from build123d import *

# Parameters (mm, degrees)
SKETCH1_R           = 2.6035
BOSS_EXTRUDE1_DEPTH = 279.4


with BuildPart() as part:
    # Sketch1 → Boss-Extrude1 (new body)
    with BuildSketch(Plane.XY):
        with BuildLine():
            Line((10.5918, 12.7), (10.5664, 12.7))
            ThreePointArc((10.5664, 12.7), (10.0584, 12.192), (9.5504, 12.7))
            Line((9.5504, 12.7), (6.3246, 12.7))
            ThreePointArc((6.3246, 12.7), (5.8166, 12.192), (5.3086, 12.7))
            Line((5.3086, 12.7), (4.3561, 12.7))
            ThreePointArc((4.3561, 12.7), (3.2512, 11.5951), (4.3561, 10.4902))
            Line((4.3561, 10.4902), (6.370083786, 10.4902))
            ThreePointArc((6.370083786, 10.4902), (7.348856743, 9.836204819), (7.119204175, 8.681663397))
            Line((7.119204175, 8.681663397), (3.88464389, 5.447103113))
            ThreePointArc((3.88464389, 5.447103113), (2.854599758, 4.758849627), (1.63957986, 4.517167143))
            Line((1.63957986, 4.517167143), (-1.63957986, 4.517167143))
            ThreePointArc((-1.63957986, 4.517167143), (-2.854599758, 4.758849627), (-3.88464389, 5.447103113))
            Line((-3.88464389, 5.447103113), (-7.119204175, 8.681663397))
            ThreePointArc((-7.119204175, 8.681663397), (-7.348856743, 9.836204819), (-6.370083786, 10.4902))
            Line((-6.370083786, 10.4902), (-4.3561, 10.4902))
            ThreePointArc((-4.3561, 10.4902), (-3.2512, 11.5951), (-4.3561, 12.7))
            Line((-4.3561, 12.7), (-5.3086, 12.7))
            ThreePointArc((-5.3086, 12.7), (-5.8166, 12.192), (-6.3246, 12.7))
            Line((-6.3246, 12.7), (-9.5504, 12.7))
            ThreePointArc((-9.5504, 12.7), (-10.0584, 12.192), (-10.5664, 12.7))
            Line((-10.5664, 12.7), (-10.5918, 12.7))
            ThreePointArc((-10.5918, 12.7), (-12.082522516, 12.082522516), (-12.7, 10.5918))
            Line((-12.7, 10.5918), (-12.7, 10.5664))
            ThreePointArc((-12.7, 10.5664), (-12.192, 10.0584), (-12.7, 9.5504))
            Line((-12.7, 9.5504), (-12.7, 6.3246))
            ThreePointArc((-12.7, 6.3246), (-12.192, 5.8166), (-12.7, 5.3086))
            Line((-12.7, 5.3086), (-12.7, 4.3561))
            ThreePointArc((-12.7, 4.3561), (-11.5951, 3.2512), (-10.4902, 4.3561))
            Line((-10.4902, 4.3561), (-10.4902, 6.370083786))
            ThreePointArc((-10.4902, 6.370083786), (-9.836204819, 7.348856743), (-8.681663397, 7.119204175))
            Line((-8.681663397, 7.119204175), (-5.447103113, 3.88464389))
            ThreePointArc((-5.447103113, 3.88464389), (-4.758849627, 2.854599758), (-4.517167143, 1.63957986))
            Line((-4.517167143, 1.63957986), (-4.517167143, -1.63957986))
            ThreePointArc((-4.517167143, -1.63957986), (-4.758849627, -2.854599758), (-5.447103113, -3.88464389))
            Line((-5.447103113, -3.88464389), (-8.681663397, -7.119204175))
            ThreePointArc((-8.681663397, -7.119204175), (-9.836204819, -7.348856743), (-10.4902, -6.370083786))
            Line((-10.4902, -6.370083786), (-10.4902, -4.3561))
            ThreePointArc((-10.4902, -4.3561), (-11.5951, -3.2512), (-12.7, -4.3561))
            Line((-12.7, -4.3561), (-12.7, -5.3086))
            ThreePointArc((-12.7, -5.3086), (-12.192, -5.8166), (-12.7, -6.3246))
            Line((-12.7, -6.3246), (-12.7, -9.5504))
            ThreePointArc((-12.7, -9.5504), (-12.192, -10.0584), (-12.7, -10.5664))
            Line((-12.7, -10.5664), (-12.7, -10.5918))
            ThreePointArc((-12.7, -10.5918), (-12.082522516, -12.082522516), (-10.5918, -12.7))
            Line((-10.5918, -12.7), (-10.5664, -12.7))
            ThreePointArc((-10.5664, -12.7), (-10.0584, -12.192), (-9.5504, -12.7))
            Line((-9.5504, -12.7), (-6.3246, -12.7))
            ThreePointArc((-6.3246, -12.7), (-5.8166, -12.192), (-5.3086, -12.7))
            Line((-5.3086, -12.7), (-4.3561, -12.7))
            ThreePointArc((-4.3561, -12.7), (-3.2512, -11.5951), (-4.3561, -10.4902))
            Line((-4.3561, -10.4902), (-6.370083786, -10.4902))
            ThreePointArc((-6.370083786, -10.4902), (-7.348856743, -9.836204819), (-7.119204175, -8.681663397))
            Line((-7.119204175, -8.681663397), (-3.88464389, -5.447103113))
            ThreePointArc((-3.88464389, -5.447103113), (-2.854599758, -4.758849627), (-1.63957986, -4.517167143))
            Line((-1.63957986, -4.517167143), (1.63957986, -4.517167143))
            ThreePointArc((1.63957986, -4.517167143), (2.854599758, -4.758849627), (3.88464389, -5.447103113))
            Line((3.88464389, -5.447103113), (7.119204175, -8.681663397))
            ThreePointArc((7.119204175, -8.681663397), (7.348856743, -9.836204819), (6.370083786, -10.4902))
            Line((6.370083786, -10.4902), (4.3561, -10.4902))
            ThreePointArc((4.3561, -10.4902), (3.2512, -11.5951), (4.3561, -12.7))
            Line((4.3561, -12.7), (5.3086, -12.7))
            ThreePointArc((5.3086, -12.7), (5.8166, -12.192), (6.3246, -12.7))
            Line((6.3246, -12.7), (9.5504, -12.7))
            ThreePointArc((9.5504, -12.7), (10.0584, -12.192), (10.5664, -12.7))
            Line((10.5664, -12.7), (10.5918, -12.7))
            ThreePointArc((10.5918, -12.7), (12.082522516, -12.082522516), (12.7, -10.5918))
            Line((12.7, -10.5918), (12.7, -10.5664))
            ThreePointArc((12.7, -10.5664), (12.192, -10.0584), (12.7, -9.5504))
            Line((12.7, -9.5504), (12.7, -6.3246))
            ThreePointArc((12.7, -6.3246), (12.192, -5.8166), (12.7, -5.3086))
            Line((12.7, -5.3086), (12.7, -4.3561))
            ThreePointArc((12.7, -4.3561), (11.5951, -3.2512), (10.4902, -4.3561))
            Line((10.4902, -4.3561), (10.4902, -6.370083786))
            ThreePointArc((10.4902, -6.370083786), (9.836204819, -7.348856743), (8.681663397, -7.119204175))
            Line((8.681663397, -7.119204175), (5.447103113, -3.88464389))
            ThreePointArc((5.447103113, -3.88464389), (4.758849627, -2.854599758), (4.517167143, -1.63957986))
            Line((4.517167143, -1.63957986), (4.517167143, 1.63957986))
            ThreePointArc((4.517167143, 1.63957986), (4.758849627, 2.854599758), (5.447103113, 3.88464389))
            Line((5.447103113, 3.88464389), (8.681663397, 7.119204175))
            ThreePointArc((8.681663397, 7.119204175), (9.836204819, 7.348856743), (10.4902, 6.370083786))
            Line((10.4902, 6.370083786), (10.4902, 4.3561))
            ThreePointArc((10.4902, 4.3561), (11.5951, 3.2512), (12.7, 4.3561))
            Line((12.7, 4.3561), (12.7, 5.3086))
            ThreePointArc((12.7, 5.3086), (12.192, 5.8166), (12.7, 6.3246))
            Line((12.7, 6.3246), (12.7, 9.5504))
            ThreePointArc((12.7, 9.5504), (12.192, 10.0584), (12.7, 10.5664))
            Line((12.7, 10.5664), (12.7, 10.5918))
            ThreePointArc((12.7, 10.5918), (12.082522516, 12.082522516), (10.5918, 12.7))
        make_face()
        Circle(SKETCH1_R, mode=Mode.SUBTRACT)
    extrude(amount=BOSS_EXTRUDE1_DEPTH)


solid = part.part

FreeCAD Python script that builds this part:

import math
import FreeCAD as App
import Part
import Sketcher
from FreeCAD import Vector
Q = App.Units.Quantity

doc = App.newDocument("Part")
body = doc.addObject("PartDesign::Body", "Body")

# Sketch on XY plane
sketch1 = body.newObject("Sketcher::SketchObject", "Sketch")
sketch1.AttachmentSupport = (doc.getObject("XY_Plane"), [""])
sketch1.MapMode = "FlatFace"
sketch1.addGeometry(Part.LineSegment(Vector(10.592, 12.7, 0), Vector(10.566, 12.7, 0)), False)
sketch1.addGeometry(Part.ArcOfCircle(Part.Circle(Vector(10.058, 12.7, 0), Vector(0, 0, 1), 0.508), math.radians(180), math.radians(360)), False)
sketch1.addGeometry(Part.LineSegment(Vector(9.55, 12.7, 0), Vector(6.325, 12.7, 0)), False)
sketch1.addGeometry(Part.ArcOfCircle(Part.Circle(Vector(5.817, 12.7, 0), Vector(0, 0, 1), 0.508), math.radians(180), math.radians(360)), False)
sketch1.addGeometry(Part.LineSegment(Vector(5.309, 12.7, 0), Vector(4.356, 12.7, 0)), False)
sketch1.addGeometry(Part.ArcOfCircle(Part.Circle(Vector(4.356, 11.595, 0), Vector(0, 0, 1), 1.105), math.radians(90), math.radians(270)), False)
sketch1.addGeometry(Part.LineSegment(Vector(4.356, 10.49, 0), Vector(6.37, 10.49, 0)), False)
sketch1.addGeometry(Part.ArcOfCircle(Part.Circle(Vector(6.37, 9.431, 0), Vector(0, 0, 1), 1.059), math.radians(-45), math.radians(90)), False)
sketch1.addGeometry(Part.LineSegment(Vector(7.119, 8.682, 0), Vector(3.885, 5.447, 0)), False)
sketch1.addGeometry(Part.ArcOfCircle(Part.Circle(Vector(1.64, 7.692, 0), Vector(0, 0, 1), 3.175), math.radians(-90), math.radians(-45)), False)
sketch1.addGeometry(Part.LineSegment(Vector(1.64, 4.517, 0), Vector(-1.64, 4.517, 0)), False)
sketch1.addGeometry(Part.ArcOfCircle(Part.Circle(Vector(-1.64, 7.692, 0), Vector(0, 0, 1), 3.175), math.radians(-135), math.radians(-90)), False)
sketch1.addGeometry(Part.LineSegment(Vector(-3.885, 5.447, 0), Vector(-7.119, 8.682, 0)), False)
sketch1.addGeometry(Part.ArcOfCircle(Part.Circle(Vector(-6.37, 9.431, 0), Vector(0, 0, 1), 1.059), math.radians(90), math.radians(225)), False)
sketch1.addGeometry(Part.LineSegment(Vector(-6.37, 10.49, 0), Vector(-4.356, 10.49, 0)), False)
sketch1.addGeometry(Part.ArcOfCircle(Part.Circle(Vector(-4.356, 11.595, 0), Vector(0, 0, 1), 1.105), math.radians(-90), math.radians(90)), False)
sketch1.addGeometry(Part.LineSegment(Vector(-4.356, 12.7, 0), Vector(-5.309, 12.7, 0)), False)
sketch1.addGeometry(Part.ArcOfCircle(Part.Circle(Vector(-5.817, 12.7, 0), Vector(0, 0, 1), 0.508), math.radians(180), math.radians(360)), False)
sketch1.addGeometry(Part.LineSegment(Vector(-6.325, 12.7, 0), Vector(-9.55, 12.7, 0)), False)
sketch1.addGeometry(Part.ArcOfCircle(Part.Circle(Vector(-10.058, 12.7, 0), Vector(0, 0, 1), 0.508), math.radians(180), math.radians(360)), False)
sketch1.addGeometry(Part.LineSegment(Vector(-10.566, 12.7, 0), Vector(-10.592, 12.7, 0)), False)
sketch1.addGeometry(Part.ArcOfCircle(Part.Circle(Vector(-10.592, 10.592, 0), Vector(0, 0, 1), 2.108), math.radians(90), math.radians(180)), False)
sketch1.addGeometry(Part.LineSegment(Vector(-12.7, 10.592, 0), Vector(-12.7, 10.566, 0)), False)
sketch1.addGeometry(Part.ArcOfCircle(Part.Circle(Vector(-12.7, 10.058, 0), Vector(0, 0, 1), 0.508), math.radians(-90), math.radians(90)), False)
sketch1.addGeometry(Part.LineSegment(Vector(-12.7, 9.55, 0), Vector(-12.7, 6.325, 0)), False)
sketch1.addGeometry(Part.ArcOfCircle(Part.Circle(Vector(-12.7, 5.817, 0), Vector(0, 0, 1), 0.508), math.radians(-90), math.radians(90)), False)
sketch1.addGeometry(Part.LineSegment(Vector(-12.7, 5.309, 0), Vector(-12.7, 4.356, 0)), False)
sketch1.addGeometry(Part.ArcOfCircle(Part.Circle(Vector(-11.595, 4.356, 0), Vector(0, 0, 1), 1.105), math.radians(180), math.radians(360)), False)
sketch1.addGeometry(Part.LineSegment(Vector(-10.49, 4.356, 0), Vector(-10.49, 6.37, 0)), False)
sketch1.addGeometry(Part.ArcOfCircle(Part.Circle(Vector(-9.431, 6.37, 0), Vector(0, 0, 1), 1.059), math.radians(45), math.radians(180)), False)
sketch1.addGeometry(Part.LineSegment(Vector(-8.682, 7.119, 0), Vector(-5.447, 3.885, 0)), False)
sketch1.addGeometry(Part.ArcOfCircle(Part.Circle(Vector(-7.692, 1.64, 0), Vector(0, 0, 1), 3.175), math.radians(0), math.radians(45)), False)
sketch1.addGeometry(Part.LineSegment(Vector(-4.517, 1.64, 0), Vector(-4.517, -1.64, 0)), False)
sketch1.addGeometry(Part.ArcOfCircle(Part.Circle(Vector(-7.692, -1.64, 0), Vector(0, 0, 1), 3.175), math.radians(-45), math.radians(0)), False)
sketch1.addGeometry(Part.LineSegment(Vector(-5.447, -3.885, 0), Vector(-8.682, -7.119, 0)), False)
sketch1.addGeometry(Part.ArcOfCircle(Part.Circle(Vector(-9.431, -6.37, 0), Vector(0, 0, 1), 1.059), math.radians(180), math.radians(315)), False)
sketch1.addGeometry(Part.LineSegment(Vector(-10.49, -6.37, 0), Vector(-10.49, -4.356, 0)), False)
sketch1.addGeometry(Part.ArcOfCircle(Part.Circle(Vector(-11.595, -4.356, 0), Vector(0, 0, 1), 1.105), math.radians(0), math.radians(180)), False)
sketch1.addGeometry(Part.LineSegment(Vector(-12.7, -4.356, 0), Vector(-12.7, -5.309, 0)), False)
sketch1.addGeometry(Part.ArcOfCircle(Part.Circle(Vector(-12.7, -5.817, 0), Vector(0, 0, 1), 0.508), math.radians(-90), math.radians(90)), False)
sketch1.addGeometry(Part.LineSegment(Vector(-12.7, -6.325, 0), Vector(-12.7, -9.55, 0)), False)
sketch1.addGeometry(Part.ArcOfCircle(Part.Circle(Vector(-12.7, -10.058, 0), Vector(0, 0, 1), 0.508), math.radians(-90), math.radians(90)), False)
sketch1.addGeometry(Part.LineSegment(Vector(-12.7, -10.566, 0), Vector(-12.7, -10.592, 0)), False)
sketch1.addGeometry(Part.ArcOfCircle(Part.Circle(Vector(-10.592, -10.592, 0), Vector(0, 0, 1), 2.108), math.radians(180), math.radians(270)), False)
sketch1.addGeometry(Part.LineSegment(Vector(-10.592, -12.7, 0), Vector(-10.566, -12.7, 0)), False)
sketch1.addGeometry(Part.ArcOfCircle(Part.Circle(Vector(-10.058, -12.7, 0), Vector(0, 0, 1), 0.508), math.radians(0), math.radians(180)), False)
sketch1.addGeometry(Part.LineSegment(Vector(-9.55, -12.7, 0), Vector(-6.325, -12.7, 0)), False)
sketch1.addGeometry(Part.ArcOfCircle(Part.Circle(Vector(-5.817, -12.7, 0), Vector(0, 0, 1), 0.508), math.radians(0), math.radians(180)), False)
sketch1.addGeometry(Part.LineSegment(Vector(-5.309, -12.7, 0), Vector(-4.356, -12.7, 0)), False)
sketch1.addGeometry(Part.ArcOfCircle(Part.Circle(Vector(-4.356, -11.595, 0), Vector(0, 0, 1), 1.105), math.radians(-90), math.radians(90)), False)
sketch1.addGeometry(Part.LineSegment(Vector(-4.356, -10.49, 0), Vector(-6.37, -10.49, 0)), False)
sketch1.addGeometry(Part.ArcOfCircle(Part.Circle(Vector(-6.37, -9.431, 0), Vector(0, 0, 1), 1.059), math.radians(135), math.radians(270)), False)
sketch1.addGeometry(Part.LineSegment(Vector(-7.119, -8.682, 0), Vector(-3.885, -5.447, 0)), False)
sketch1.addGeometry(Part.ArcOfCircle(Part.Circle(Vector(-1.64, -7.692, 0), Vector(0, 0, 1), 3.175), math.radians(90), math.radians(135)), False)
sketch1.addGeometry(Part.LineSegment(Vector(-1.64, -4.517, 0), Vector(1.64, -4.517, 0)), False)
sketch1.addGeometry(Part.ArcOfCircle(Part.Circle(Vector(1.64, -7.692, 0), Vector(0, 0, 1), 3.175), math.radians(45), math.radians(90)), False)
sketch1.addGeometry(Part.LineSegment(Vector(3.885, -5.447, 0), Vector(7.119, -8.682, 0)), False)
sketch1.addGeometry(Part.ArcOfCircle(Part.Circle(Vector(6.37, -9.431, 0), Vector(0, 0, 1), 1.059), math.radians(-90), math.radians(45)), False)
sketch1.addGeometry(Part.LineSegment(Vector(6.37, -10.49, 0), Vector(4.356, -10.49, 0)), False)
sketch1.addGeometry(Part.ArcOfCircle(Part.Circle(Vector(4.356, -11.595, 0), Vector(0, 0, 1), 1.105), math.radians(90), math.radians(270)), False)
sketch1.addGeometry(Part.LineSegment(Vector(4.356, -12.7, 0), Vector(5.309, -12.7, 0)), False)
sketch1.addGeometry(Part.ArcOfCircle(Part.Circle(Vector(5.817, -12.7, 0), Vector(0, 0, 1), 0.508), math.radians(0), math.radians(180)), False)
sketch1.addGeometry(Part.LineSegment(Vector(6.325, -12.7, 0), Vector(9.55, -12.7, 0)), False)
sketch1.addGeometry(Part.ArcOfCircle(Part.Circle(Vector(10.058, -12.7, 0), Vector(0, 0, 1), 0.508), math.radians(0), math.radians(180)), False)
sketch1.addGeometry(Part.LineSegment(Vector(10.566, -12.7, 0), Vector(10.592, -12.7, 0)), False)
sketch1.addGeometry(Part.ArcOfCircle(Part.Circle(Vector(10.592, -10.592, 0), Vector(0, 0, 1), 2.108), math.radians(-90), math.radians(0)), False)
sketch1.addGeometry(Part.LineSegment(Vector(12.7, -10.592, 0), Vector(12.7, -10.566, 0)), False)
sketch1.addGeometry(Part.ArcOfCircle(Part.Circle(Vector(12.7, -10.058, 0), Vector(0, 0, 1), 0.508), math.radians(90), math.radians(270)), False)
sketch1.addGeometry(Part.LineSegment(Vector(12.7, -9.55, 0), Vector(12.7, -6.325, 0)), False)
sketch1.addGeometry(Part.ArcOfCircle(Part.Circle(Vector(12.7, -5.817, 0), Vector(0, 0, 1), 0.508), math.radians(90), math.radians(270)), False)
sketch1.addGeometry(Part.LineSegment(Vector(12.7, -5.309, 0), Vector(12.7, -4.356, 0)), False)
sketch1.addGeometry(Part.ArcOfCircle(Part.Circle(Vector(11.595, -4.356, 0), Vector(0, 0, 1), 1.105), math.radians(0), math.radians(180)), False)
sketch1.addGeometry(Part.LineSegment(Vector(10.49, -4.356, 0), Vector(10.49, -6.37, 0)), False)
sketch1.addGeometry(Part.ArcOfCircle(Part.Circle(Vector(9.431, -6.37, 0), Vector(0, 0, 1), 1.059), math.radians(-135), math.radians(0)), False)
sketch1.addGeometry(Part.LineSegment(Vector(8.682, -7.119, 0), Vector(5.447, -3.885, 0)), False)
sketch1.addGeometry(Part.ArcOfCircle(Part.Circle(Vector(7.692, -1.64, 0), Vector(0, 0, 1), 3.175), math.radians(180), math.radians(225)), False)
sketch1.addGeometry(Part.LineSegment(Vector(4.517, -1.64, 0), Vector(4.517, 1.64, 0)), False)
sketch1.addGeometry(Part.ArcOfCircle(Part.Circle(Vector(7.692, 1.64, 0), Vector(0, 0, 1), 3.175), math.radians(135), math.radians(180)), False)
sketch1.addGeometry(Part.LineSegment(Vector(5.447, 3.885, 0), Vector(8.682, 7.119, 0)), False)
sketch1.addGeometry(Part.ArcOfCircle(Part.Circle(Vector(9.431, 6.37, 0), Vector(0, 0, 1), 1.059), math.radians(0), math.radians(135)), False)
sketch1.addGeometry(Part.LineSegment(Vector(10.49, 6.37, 0), Vector(10.49, 4.356, 0)), False)
sketch1.addGeometry(Part.ArcOfCircle(Part.Circle(Vector(11.595, 4.356, 0), Vector(0, 0, 1), 1.105), math.radians(180), math.radians(360)), False)
sketch1.addGeometry(Part.LineSegment(Vector(12.7, 4.356, 0), Vector(12.7, 5.309, 0)), False)
sketch1.addGeometry(Part.ArcOfCircle(Part.Circle(Vector(12.7, 5.817, 0), Vector(0, 0, 1), 0.508), math.radians(90), math.radians(270)), False)
sketch1.addGeometry(Part.LineSegment(Vector(12.7, 6.325, 0), Vector(12.7, 9.55, 0)), False)
sketch1.addGeometry(Part.ArcOfCircle(Part.Circle(Vector(12.7, 10.058, 0), Vector(0, 0, 1), 0.508), math.radians(90), math.radians(270)), False)
sketch1.addGeometry(Part.LineSegment(Vector(12.7, 10.566, 0), Vector(12.7, 10.592, 0)), False)
sketch1.addGeometry(Part.ArcOfCircle(Part.Circle(Vector(10.592, 10.592, 0), Vector(0, 0, 1), 2.108), math.radians(0), math.radians(90)), False)
sketch1.addGeometry(Part.Circle(Vector(0, 0, 0), Vector(0, 0, 1), 2.603), False)
sketch1.addConstraint(Sketcher.Constraint("Coincident", 0, 2, 1, 2))
sketch1.addConstraint(Sketcher.Constraint("Coincident", 1, 1, 2, 1))
sketch1.addConstraint(Sketcher.Constraint("Coincident", 2, 2, 3, 2))
sketch1.addConstraint(Sketcher.Constraint("Coincident", 3, 1, 4, 1))
sketch1.addConstraint(Sketcher.Constraint("Tangent", 4, 2, 5, 1))
sketch1.addConstraint(Sketcher.Constraint("Tangent", 5, 2, 6, 1))
sketch1.addConstraint(Sketcher.Constraint("Tangent", 6, 2, 7, 2))
sketch1.addConstraint(Sketcher.Constraint("Tangent", 7, 1, 8, 1))
sketch1.addConstraint(Sketcher.Constraint("Tangent", 8, 2, 9, 2))
sketch1.addConstraint(Sketcher.Constraint("Tangent", 9, 1, 10, 1))
sketch1.addConstraint(Sketcher.Constraint("Tangent", 10, 2, 11, 2))
sketch1.addConstraint(Sketcher.Constraint("Tangent", 11, 1, 12, 1))
sketch1.addConstraint(Sketcher.Constraint("Tangent", 12, 2, 13, 2))
sketch1.addConstraint(Sketcher.Constraint("Tangent", 13, 1, 14, 1))
sketch1.addConstraint(Sketcher.Constraint("Tangent", 14, 2, 15, 1))
sketch1.addConstraint(Sketcher.Constraint("Tangent", 15, 2, 16, 1))
sketch1.addConstraint(Sketcher.Constraint("Coincident", 16, 2, 17, 2))
sketch1.addConstraint(Sketcher.Constraint("Coincident", 17, 1, 18, 1))
sketch1.addConstraint(Sketcher.Constraint("Coincident", 18, 2, 19, 2))
sketch1.addConstraint(Sketcher.Constraint("Coincident", 19, 1, 20, 1))
sketch1.addConstraint(Sketcher.Constraint("Tangent", 20, 2, 21, 1))
sketch1.addConstraint(Sketcher.Constraint("Tangent", 21, 2, 22, 1))
sketch1.addConstraint(Sketcher.Constraint("Coincident", 22, 2, 23, 2))
sketch1.addConstraint(Sketcher.Constraint("Coincident", 23, 1, 24, 1))
sketch1.addConstraint(Sketcher.Constraint("Coincident", 24, 2, 25, 2))
sketch1.addConstraint(Sketcher.Constraint("Coincident", 25, 1, 26, 1))
sketch1.addConstraint(Sketcher.Constraint("Tangent", 26, 2, 27, 1))
sketch1.addConstraint(Sketcher.Constraint("Tangent", 27, 2, 28, 1))
sketch1.addConstraint(Sketcher.Constraint("Tangent", 28, 2, 29, 2))
sketch1.addConstraint(Sketcher.Constraint("Tangent", 29, 1, 30, 1))
sketch1.addConstraint(Sketcher.Constraint("Tangent", 30, 2, 31, 2))
sketch1.addConstraint(Sketcher.Constraint("Tangent", 31, 1, 32, 1))
sketch1.addConstraint(Sketcher.Constraint("Tangent", 32, 2, 33, 2))
sketch1.addConstraint(Sketcher.Constraint("Tangent", 33, 1, 34, 1))
sketch1.addConstraint(Sketcher.Constraint("Tangent", 34, 2, 35, 2))
sketch1.addConstraint(Sketcher.Constraint("Tangent", 35, 1, 36, 1))
sketch1.addConstraint(Sketcher.Constraint("Tangent", 36, 2, 37, 1))
sketch1.addConstraint(Sketcher.Constraint("Tangent", 37, 2, 38, 1))
sketch1.addConstraint(Sketcher.Constraint("Coincident", 38, 2, 39, 2))
sketch1.addConstraint(Sketcher.Constraint("Coincident", 39, 1, 40, 1))
sketch1.addConstraint(Sketcher.Constraint("Coincident", 40, 2, 41, 2))
sketch1.addConstraint(Sketcher.Constraint("Coincident", 41, 1, 42, 1))
sketch1.addConstraint(Sketcher.Constraint("Tangent", 42, 2, 43, 1))
sketch1.addConstraint(Sketcher.Constraint("Tangent", 43, 2, 44, 1))
sketch1.addConstraint(Sketcher.Constraint("Coincident", 44, 2, 45, 2))
sketch1.addConstraint(Sketcher.Constraint("Coincident", 45, 1, 46, 1))
sketch1.addConstraint(Sketcher.Constraint("Coincident", 46, 2, 47, 2))
sketch1.addConstraint(Sketcher.Constraint("Coincident", 47, 1, 48, 1))
sketch1.addConstraint(Sketcher.Constraint("Tangent", 48, 2, 49, 1))
sketch1.addConstraint(Sketcher.Constraint("Tangent", 49, 2, 50, 1))
sketch1.addConstraint(Sketcher.Constraint("Tangent", 50, 2, 51, 2))
sketch1.addConstraint(Sketcher.Constraint("Tangent", 51, 1, 52, 1))
sketch1.addConstraint(Sketcher.Constraint("Tangent", 52, 2, 53, 2))
sketch1.addConstraint(Sketcher.Constraint("Tangent", 53, 1, 54, 1))
sketch1.addConstraint(Sketcher.Constraint("Tangent", 54, 2, 55, 2))
sketch1.addConstraint(Sketcher.Constraint("Tangent", 55, 1, 56, 1))
sketch1.addConstraint(Sketcher.Constraint("Tangent", 56, 2, 57, 2))
sketch1.addConstraint(Sketcher.Constraint("Tangent", 57, 1, 58, 1))
sketch1.addConstraint(Sketcher.Constraint("Tangent", 58, 2, 59, 1))
sketch1.addConstraint(Sketcher.Constraint("Tangent", 59, 2, 60, 1))
sketch1.addConstraint(Sketcher.Constraint("Coincident", 60, 2, 61, 2))
sketch1.addConstraint(Sketcher.Constraint("Coincident", 61, 1, 62, 1))
sketch1.addConstraint(Sketcher.Constraint("Coincident", 62, 2, 63, 2))
sketch1.addConstraint(Sketcher.Constraint("Coincident", 63, 1, 64, 1))
sketch1.addConstraint(Sketcher.Constraint("Tangent", 64, 2, 65, 1))
sketch1.addConstraint(Sketcher.Constraint("Tangent", 65, 2, 66, 1))
sketch1.addConstraint(Sketcher.Constraint("Coincident", 66, 2, 67, 2))
sketch1.addConstraint(Sketcher.Constraint("Coincident", 67, 1, 68, 1))
sketch1.addConstraint(Sketcher.Constraint("Coincident", 68, 2, 69, 2))
sketch1.addConstraint(Sketcher.Constraint("Coincident", 69, 1, 70, 1))
sketch1.addConstraint(Sketcher.Constraint("Tangent", 70, 2, 71, 1))
sketch1.addConstraint(Sketcher.Constraint("Tangent", 71, 2, 72, 1))
sketch1.addConstraint(Sketcher.Constraint("Tangent", 72, 2, 73, 2))
sketch1.addConstraint(Sketcher.Constraint("Tangent", 73, 1, 74, 1))
sketch1.addConstraint(Sketcher.Constraint("Tangent", 74, 2, 75, 2))
sketch1.addConstraint(Sketcher.Constraint("Tangent", 75, 1, 76, 1))
sketch1.addConstraint(Sketcher.Constraint("Tangent", 76, 2, 77, 2))
sketch1.addConstraint(Sketcher.Constraint("Tangent", 77, 1, 78, 1))
sketch1.addConstraint(Sketcher.Constraint("Tangent", 78, 2, 79, 2))
sketch1.addConstraint(Sketcher.Constraint("Tangent", 79, 1, 80, 1))
sketch1.addConstraint(Sketcher.Constraint("Tangent", 80, 2, 81, 1))
sketch1.addConstraint(Sketcher.Constraint("Tangent", 81, 2, 82, 1))
sketch1.addConstraint(Sketcher.Constraint("Coincident", 82, 2, 83, 2))
sketch1.addConstraint(Sketcher.Constraint("Coincident", 83, 1, 84, 1))
sketch1.addConstraint(Sketcher.Constraint("Coincident", 84, 2, 85, 2))
sketch1.addConstraint(Sketcher.Constraint("Coincident", 85, 1, 86, 1))
sketch1.addConstraint(Sketcher.Constraint("Tangent", 86, 2, 87, 1))
sketch1.addConstraint(Sketcher.Constraint("Tangent", 87, 2, 0, 1))
sketch1.addConstraint(Sketcher.Constraint("Horizontal", 0))
sketch1.addConstraint(Sketcher.Constraint("Horizontal", 2))
sketch1.addConstraint(Sketcher.Constraint("Horizontal", 4))
sketch1.addConstraint(Sketcher.Constraint("Horizontal", 6))
sketch1.addConstraint(Sketcher.Constraint("Horizontal", 10))
sketch1.addConstraint(Sketcher.Constraint("Horizontal", 14))
sketch1.addConstraint(Sketcher.Constraint("Horizontal", 16))
sketch1.addConstraint(Sketcher.Constraint("Horizontal", 18))
sketch1.addConstraint(Sketcher.Constraint("Horizontal", 20))
sketch1.addConstraint(Sketcher.Constraint("Vertical", 22))
sketch1.addConstraint(Sketcher.Constraint("Vertical", 24))
sketch1.addConstraint(Sketcher.Constraint("Vertical", 26))
sketch1.addConstraint(Sketcher.Constraint("Vertical", 28))
sketch1.addConstraint(Sketcher.Constraint("Vertical", 32))
sketch1.addConstraint(Sketcher.Constraint("Vertical", 36))
sketch1.addConstraint(Sketcher.Constraint("Vertical", 38))
sketch1.addConstraint(Sketcher.Constraint("Vertical", 40))
sketch1.addConstraint(Sketcher.Constraint("Vertical", 42))
sketch1.addConstraint(Sketcher.Constraint("Horizontal", 44))
sketch1.addConstraint(Sketcher.Constraint("Horizontal", 46))
sketch1.addConstraint(Sketcher.Constraint("Horizontal", 48))
sketch1.addConstraint(Sketcher.Constraint("Horizontal", 50))
sketch1.addConstraint(Sketcher.Constraint("Horizontal", 54))
sketch1.addConstraint(Sketcher.Constraint("Horizontal", 58))
sketch1.addConstraint(Sketcher.Constraint("Horizontal", 60))
sketch1.addConstraint(Sketcher.Constraint("Horizontal", 62))
sketch1.addConstraint(Sketcher.Constraint("Horizontal", 64))
sketch1.addConstraint(Sketcher.Constraint("Vertical", 66))
sketch1.addConstraint(Sketcher.Constraint("Vertical", 68))
sketch1.addConstraint(Sketcher.Constraint("Vertical", 70))
sketch1.addConstraint(Sketcher.Constraint("Vertical", 72))
sketch1.addConstraint(Sketcher.Constraint("Vertical", 76))
sketch1.addConstraint(Sketcher.Constraint("Vertical", 80))
sketch1.addConstraint(Sketcher.Constraint("Vertical", 82))
sketch1.addConstraint(Sketcher.Constraint("Vertical", 84))
sketch1.addConstraint(Sketcher.Constraint("Vertical", 86))
sketch1.addConstraint(Sketcher.Constraint("Coincident", 88, 3, -1, 1))
sketch1.addConstraint(Sketcher.Constraint("Equal", 1, 3))
sketch1.addConstraint(Sketcher.Constraint("Equal", 9, 11))
sketch1.addConstraint(Sketcher.Constraint("Equal", 7, 13))
sketch1.addConstraint(Sketcher.Constraint("Equal", 5, 15))
sketch1.addConstraint(Sketcher.Constraint("Equal", 3, 17))
sketch1.addConstraint(Sketcher.Constraint("Equal", 17, 19))
sketch1.addConstraint(Sketcher.Constraint("Equal", 19, 23))
sketch1.addConstraint(Sketcher.Constraint("Equal", 23, 25))
sketch1.addConstraint(Sketcher.Constraint("Equal", 15, 27))
sketch1.addConstraint(Sketcher.Constraint("Equal", 13, 29))
sketch1.addConstraint(Sketcher.Constraint("Equal", 11, 31))
sketch1.addConstraint(Sketcher.Constraint("Equal", 31, 33))
sketch1.addConstraint(Sketcher.Constraint("Equal", 29, 35))
sketch1.addConstraint(Sketcher.Constraint("Equal", 27, 37))
sketch1.addConstraint(Sketcher.Constraint("Equal", 25, 39))
sketch1.addConstraint(Sketcher.Constraint("Equal", 39, 41))
sketch1.addConstraint(Sketcher.Constraint("Equal", 21, 43))
sketch1.addConstraint(Sketcher.Constraint("Equal", 41, 45))
sketch1.addConstraint(Sketcher.Constraint("Equal", 45, 47))
sketch1.addConstraint(Sketcher.Constraint("Equal", 37, 49))
sketch1.addConstraint(Sketcher.Constraint("Equal", 35, 51))
sketch1.addConstraint(Sketcher.Constraint("Equal", 33, 53))
sketch1.addConstraint(Sketcher.Constraint("Equal", 53, 55))
sketch1.addConstraint(Sketcher.Constraint("Equal", 51, 57))
sketch1.addConstraint(Sketcher.Constraint("Equal", 49, 59))
sketch1.addConstraint(Sketcher.Constraint("Equal", 47, 61))
sketch1.addConstraint(Sketcher.Constraint("Equal", 61, 63))
sketch1.addConstraint(Sketcher.Constraint("Equal", 43, 65))
sketch1.addConstraint(Sketcher.Constraint("Equal", 63, 67))
sketch1.addConstraint(Sketcher.Constraint("Equal", 67, 69))
sketch1.addConstraint(Sketcher.Constraint("Equal", 59, 71))
sketch1.addConstraint(Sketcher.Constraint("Equal", 57, 73))
sketch1.addConstraint(Sketcher.Constraint("Equal", 55, 75))
sketch1.addConstraint(Sketcher.Constraint("Equal", 75, 77))
sketch1.addConstraint(Sketcher.Constraint("Equal", 73, 79))
sketch1.addConstraint(Sketcher.Constraint("Equal", 71, 81))
sketch1.addConstraint(Sketcher.Constraint("Equal", 69, 83))
sketch1.addConstraint(Sketcher.Constraint("Equal", 83, 85))
sketch1.addConstraint(Sketcher.Constraint("Equal", 65, 87))
sketch1.addConstraint(Sketcher.Constraint("Symmetric", 1, 3, 45, 3, -1, 1))
sketch1.addConstraint(Sketcher.Constraint("Symmetric", 3, 3, 47, 3, -1, 1))
sketch1.addConstraint(Sketcher.Constraint("Symmetric", 5, 3, 49, 3, -1, 1))
sketch1.addConstraint(Sketcher.Constraint("Symmetric", 9, 3, 53, 3, -1, 1))
sketch1.addConstraint(Sketcher.Constraint("Symmetric", 13, 3, 57, 3, -1, 1))
sketch1.addConstraint(Sketcher.Constraint("Symmetric", 17, 3, 61, 3, -1, 1))
sketch1.addConstraint(Sketcher.Constraint("Symmetric", 19, 3, 63, 3, -1, 1))
sketch1.addConstraint(Sketcher.Constraint("Symmetric", 21, 3, 65, 3, -1, 1))
sketch1.addConstraint(Sketcher.Constraint("Symmetric", 23, 3, 67, 3, -1, 1))
sketch1.addConstraint(Sketcher.Constraint("Symmetric", 25, 3, 69, 3, -1, 1))
sketch1.addConstraint(Sketcher.Constraint("Symmetric", 27, 3, 71, 3, -1, 1))
sketch1.addConstraint(Sketcher.Constraint("Symmetric", 31, 3, 75, 3, -1, 1))
sketch1.addConstraint(Sketcher.Constraint("Symmetric", 35, 3, 79, 3, -1, 1))
sketch1.addConstraint(Sketcher.Constraint("Symmetric", 39, 3, 83, 3, -1, 1))
sketch1.addConstraint(Sketcher.Constraint("Symmetric", 41, 3, 85, 3, -1, 1))
sketch1.addConstraint(Sketcher.Constraint("Symmetric", 43, 3, 87, 3, -1, 1))
sketch1.addConstraint(Sketcher.Constraint("Symmetric", 7, 3, 13, 3, -2))
sketch1.addConstraint(Sketcher.Constraint("Symmetric", 3, 3, 17, 3, -2))
sketch1.addConstraint(Sketcher.Constraint("Symmetric", 1, 3, 19, 3, -2))
sketch1.addConstraint(Sketcher.Constraint("Symmetric", 43, 3, 65, 3, -2))
sketch1.addConstraint(Sketcher.Constraint("Symmetric", 41, 3, 67, 3, -2))
sketch1.addConstraint(Sketcher.Constraint("Symmetric", 39, 3, 69, 3, -2))
sketch1.addConstraint(Sketcher.Constraint("Symmetric", 37, 3, 71, 3, -2))
sketch1.addConstraint(Sketcher.Constraint("Symmetric", 52, 2, 55, 1, -2))
sketch1.addConstraint(Sketcher.Constraint("Symmetric", 34, 2, 73, 1, -2))
sketch1.addConstraint(Sketcher.Constraint("Symmetric", 30, 2, 77, 1, -2))
sketch1.addConstraint(Sketcher.Constraint("Perpendicular", 8, 12))
sketch1.addConstraint(Sketcher.Constraint("Parallel", 12, 30))
sketch1.addConstraint(Sketcher.Constraint("Perpendicular", 30, 34))
sketch1.addConstraint(Sketcher.Constraint("Horizontal", 1, 3, 3, 3))
sketch1.addConstraint(Sketcher.Constraint("Horizontal", 27, 3, 81, 3))
sketch1.addConstraint(Sketcher.Constraint("Horizontal", 19, 3, 0, 2))
sketch1.addConstraint(Sketcher.Constraint("Horizontal", 0, 2, 1, 1))
sketch1.addConstraint(Sketcher.Constraint("Horizontal", 2, 2, 3, 1))
sketch1.addConstraint(Sketcher.Constraint("Horizontal", 16, 2, 17, 1))
sketch1.addConstraint(Sketcher.Constraint("Horizontal", 44, 2, 45, 1))
sketch1.addConstraint(Sketcher.Constraint("Horizontal", 60, 2, 61, 1))
sketch1.addConstraint(Sketcher.Constraint("Vertical", 23, 3, 25, 3))
sketch1.addConstraint(Sketcher.Constraint("Vertical", 15, 3, 49, 3))
sketch1.addConstraint(Sketcher.Constraint("Vertical", 5, 3, 59, 3))
sketch1.addConstraint(Sketcher.Constraint("Vertical", 41, 3, 21, 2))
sketch1.addConstraint(Sketcher.Constraint("Vertical", 22, 2, 23, 1))
sketch1.addConstraint(Sketcher.Constraint("Vertical", 24, 2, 25, 1))
sketch1.addConstraint(Sketcher.Constraint("Vertical", 38, 2, 39, 1))
sketch1.addConstraint(Sketcher.Constraint("Vertical", 66, 2, 67, 1))
sketch1.addConstraint(Sketcher.Constraint("Vertical", 82, 2, 83, 1))
sketch1.addConstraint(Sketcher.Constraint("Equal", 64, 22))
sketch1.addConstraint(Sketcher.Constraint("Equal", 62, 24))
sketch1.addConstraint(Sketcher.Constraint("Equal", 60, 26))
sketch1.addConstraint(Sketcher.Constraint("Equal", 58, 28))
sketch1.addConstraint(Sketcher.Constraint("Equal", 54, 32))
sketch1.addConstraint(Sketcher.Constraint("Equal", 12, 30))
sketch1.addConstraint(Sketcher.Constraint("Radius", 1, Q("0.02 in")))
sketch1.addConstraint(Sketcher.Constraint("Diameter", 88, Q("0.205 in")))
sketch1.addConstraint(Sketcher.Constraint("Radius", 9, Q("0.125 in")))
sketch1.addConstraint(Sketcher.Constraint("Radius", 21, Q("0.083 in")))
sketch1.addConstraint(Sketcher.Constraint("DistanceY", -1, 1, 1, 3, Q("0.5 in")))
sketch1.addConstraint(Sketcher.Constraint("Radius", 5, Q("0.0435 in")))
sketch1.addConstraint(Sketcher.Constraint("DistanceX", 0, 2, 0, 1, Q("0.001 in")))
sketch1.addConstraint(Sketcher.Constraint("DistanceX", 2, 2, 2, 1, Q("0.127 in")))
sketch1.addConstraint(Sketcher.Constraint("DistanceX", 4, 2, 4, 1, Q("0.0375 in")))
sketch1.addConstraint(Sketcher.Constraint("Radius", 7, Q("1.059416 mm")))
sketch1.addConstraint(Sketcher.Constraint("DistanceX", 10, 2, 10, 1, Q("3.27916 mm")))
sketch1.addConstraint(Sketcher.Constraint("Distance", 8, Q("4.574359 mm")))
pad1 = body.newObject("PartDesign::Pad", "Pad")
pad1.Profile = sketch1
pad1.Length = Q("11 in")

doc.recompute()
